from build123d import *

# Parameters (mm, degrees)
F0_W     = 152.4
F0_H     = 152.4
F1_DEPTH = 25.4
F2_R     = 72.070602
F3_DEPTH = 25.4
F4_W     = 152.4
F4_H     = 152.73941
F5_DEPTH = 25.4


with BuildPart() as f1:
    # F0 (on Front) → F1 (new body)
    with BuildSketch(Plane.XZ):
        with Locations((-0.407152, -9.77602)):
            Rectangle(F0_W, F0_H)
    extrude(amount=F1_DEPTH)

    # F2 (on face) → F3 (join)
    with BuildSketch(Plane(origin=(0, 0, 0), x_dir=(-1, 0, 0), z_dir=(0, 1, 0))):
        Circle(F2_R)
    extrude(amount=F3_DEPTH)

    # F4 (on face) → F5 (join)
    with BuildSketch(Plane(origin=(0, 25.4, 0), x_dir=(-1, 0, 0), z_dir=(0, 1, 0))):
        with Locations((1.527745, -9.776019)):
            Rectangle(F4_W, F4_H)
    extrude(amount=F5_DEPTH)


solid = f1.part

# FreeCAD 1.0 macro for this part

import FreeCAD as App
import Part
import Sketcher
from FreeCAD import Vector
Q = App.Units.Quantity


def add_polygon(sketch, points):
    """Adds a closed chain of lines whose ends are joined by coincident constraints."""
    first, n = sketch.GeometryCount, len(points)
    for a, b in zip(points, points[1:] + points[:1]):
        sketch.addGeometry(Part.LineSegment(App.Vector(*a, 0), App.Vector(*b, 0)), False)
    for i in range(n):
        sketch.addConstraint(Sketcher.Constraint("Coincident", first + i, 2, first + (i + 1) % n, 1))

doc = App.newDocument("Part")
body = doc.addObject("PartDesign::Body", "Body")

sketch1 = body.newObject("Sketcher::SketchObject", "Sketch")
sketch1.AttachmentSupport = (doc.getObject("XZ_Plane"), [""])
sketch1.MapMode = "FlatFace"
add_polygon(sketch1, [(-77, 66), (-77, -86), (76, -86), (76, 66)])
sketch1.addConstraint([
    Sketcher.Constraint("Vertical", 0),
    Sketcher.Constraint("Horizontal", 1),
    Sketcher.Constraint("Vertical", 2),
    Sketcher.Constraint("Horizontal", 3),
    Sketcher.Constraint("Equal", 3, 0),
    Sketcher.Constraint("DistanceX", 1, 1, 1, 2, Q("6 in")),
    Sketcher.Constraint("DistanceX", 0, 2, -1, 1, 76.607152),
    Sketcher.Constraint("DistanceY", 0, 2, -1, 1, 85.97602),
])
pad1 = body.newObject("PartDesign::Pad", "Pad")
pad1.Profile = sketch1
pad1.Length = Q("1 in")

sketch2 = body.newObject("Sketcher::SketchObject", "Sketch001")
sketch2.AttachmentSupport = (doc.getObject("XZ_Plane"), [""])
sketch2.MapMode = "FlatFace"
sketch2.addGeometry(Part.Circle(Vector(0, 0, 0), Vector(0, 0, 1), 72), False)
sketch2.addConstraint([
    Sketcher.Constraint("Coincident", 0, 3, -1, 1),
    Sketcher.Constraint("Diameter", 0, 144.141204),
])
pad2 = body.newObject("PartDesign::Pad", "Pad001")
pad2.Profile = sketch2
pad2.Length = Q("1 in")
pad2.Reversed = True

sketch3 = body.newObject("Sketcher::SketchObject", "Sketch002")
sketch3.AttachmentSupport = (doc.getObject("XZ_Plane"), [""])
sketch3.MapMode = "FlatFace"
sketch3.AttachmentOffset = App.Placement(Vector(0, 0, -1 * 25.4), App.Rotation())
add_polygon(sketch3, [(75, 67), (75, -86), (-78, -86), (-78, 67)])
sketch3.addConstraint([
    Sketcher.Constraint("Vertical", 0),
    Sketcher.Constraint("Horizontal", 1),
    Sketcher.Constraint("Vertical", 2),
    Sketcher.Constraint("Horizontal", 3),
    Sketcher.Constraint("DistanceX", 1, 2, 1, 1, Q("6 in")),
    Sketcher.Constraint("DistanceY", 0, 2, 0, 1, 152.73941),
    Sketcher.Constraint("DistanceX", -1, 1, 0, 2, 74.672255),
    Sketcher.Constraint("DistanceY", 0, 2, -1, 1, 86.145724),
])
pad3 = body.newObject("PartDesign::Pad", "Pad002")
pad3.Profile = sketch3
pad3.Length = Q("1 in")
pad3.Reversed = True

doc.recompute()
